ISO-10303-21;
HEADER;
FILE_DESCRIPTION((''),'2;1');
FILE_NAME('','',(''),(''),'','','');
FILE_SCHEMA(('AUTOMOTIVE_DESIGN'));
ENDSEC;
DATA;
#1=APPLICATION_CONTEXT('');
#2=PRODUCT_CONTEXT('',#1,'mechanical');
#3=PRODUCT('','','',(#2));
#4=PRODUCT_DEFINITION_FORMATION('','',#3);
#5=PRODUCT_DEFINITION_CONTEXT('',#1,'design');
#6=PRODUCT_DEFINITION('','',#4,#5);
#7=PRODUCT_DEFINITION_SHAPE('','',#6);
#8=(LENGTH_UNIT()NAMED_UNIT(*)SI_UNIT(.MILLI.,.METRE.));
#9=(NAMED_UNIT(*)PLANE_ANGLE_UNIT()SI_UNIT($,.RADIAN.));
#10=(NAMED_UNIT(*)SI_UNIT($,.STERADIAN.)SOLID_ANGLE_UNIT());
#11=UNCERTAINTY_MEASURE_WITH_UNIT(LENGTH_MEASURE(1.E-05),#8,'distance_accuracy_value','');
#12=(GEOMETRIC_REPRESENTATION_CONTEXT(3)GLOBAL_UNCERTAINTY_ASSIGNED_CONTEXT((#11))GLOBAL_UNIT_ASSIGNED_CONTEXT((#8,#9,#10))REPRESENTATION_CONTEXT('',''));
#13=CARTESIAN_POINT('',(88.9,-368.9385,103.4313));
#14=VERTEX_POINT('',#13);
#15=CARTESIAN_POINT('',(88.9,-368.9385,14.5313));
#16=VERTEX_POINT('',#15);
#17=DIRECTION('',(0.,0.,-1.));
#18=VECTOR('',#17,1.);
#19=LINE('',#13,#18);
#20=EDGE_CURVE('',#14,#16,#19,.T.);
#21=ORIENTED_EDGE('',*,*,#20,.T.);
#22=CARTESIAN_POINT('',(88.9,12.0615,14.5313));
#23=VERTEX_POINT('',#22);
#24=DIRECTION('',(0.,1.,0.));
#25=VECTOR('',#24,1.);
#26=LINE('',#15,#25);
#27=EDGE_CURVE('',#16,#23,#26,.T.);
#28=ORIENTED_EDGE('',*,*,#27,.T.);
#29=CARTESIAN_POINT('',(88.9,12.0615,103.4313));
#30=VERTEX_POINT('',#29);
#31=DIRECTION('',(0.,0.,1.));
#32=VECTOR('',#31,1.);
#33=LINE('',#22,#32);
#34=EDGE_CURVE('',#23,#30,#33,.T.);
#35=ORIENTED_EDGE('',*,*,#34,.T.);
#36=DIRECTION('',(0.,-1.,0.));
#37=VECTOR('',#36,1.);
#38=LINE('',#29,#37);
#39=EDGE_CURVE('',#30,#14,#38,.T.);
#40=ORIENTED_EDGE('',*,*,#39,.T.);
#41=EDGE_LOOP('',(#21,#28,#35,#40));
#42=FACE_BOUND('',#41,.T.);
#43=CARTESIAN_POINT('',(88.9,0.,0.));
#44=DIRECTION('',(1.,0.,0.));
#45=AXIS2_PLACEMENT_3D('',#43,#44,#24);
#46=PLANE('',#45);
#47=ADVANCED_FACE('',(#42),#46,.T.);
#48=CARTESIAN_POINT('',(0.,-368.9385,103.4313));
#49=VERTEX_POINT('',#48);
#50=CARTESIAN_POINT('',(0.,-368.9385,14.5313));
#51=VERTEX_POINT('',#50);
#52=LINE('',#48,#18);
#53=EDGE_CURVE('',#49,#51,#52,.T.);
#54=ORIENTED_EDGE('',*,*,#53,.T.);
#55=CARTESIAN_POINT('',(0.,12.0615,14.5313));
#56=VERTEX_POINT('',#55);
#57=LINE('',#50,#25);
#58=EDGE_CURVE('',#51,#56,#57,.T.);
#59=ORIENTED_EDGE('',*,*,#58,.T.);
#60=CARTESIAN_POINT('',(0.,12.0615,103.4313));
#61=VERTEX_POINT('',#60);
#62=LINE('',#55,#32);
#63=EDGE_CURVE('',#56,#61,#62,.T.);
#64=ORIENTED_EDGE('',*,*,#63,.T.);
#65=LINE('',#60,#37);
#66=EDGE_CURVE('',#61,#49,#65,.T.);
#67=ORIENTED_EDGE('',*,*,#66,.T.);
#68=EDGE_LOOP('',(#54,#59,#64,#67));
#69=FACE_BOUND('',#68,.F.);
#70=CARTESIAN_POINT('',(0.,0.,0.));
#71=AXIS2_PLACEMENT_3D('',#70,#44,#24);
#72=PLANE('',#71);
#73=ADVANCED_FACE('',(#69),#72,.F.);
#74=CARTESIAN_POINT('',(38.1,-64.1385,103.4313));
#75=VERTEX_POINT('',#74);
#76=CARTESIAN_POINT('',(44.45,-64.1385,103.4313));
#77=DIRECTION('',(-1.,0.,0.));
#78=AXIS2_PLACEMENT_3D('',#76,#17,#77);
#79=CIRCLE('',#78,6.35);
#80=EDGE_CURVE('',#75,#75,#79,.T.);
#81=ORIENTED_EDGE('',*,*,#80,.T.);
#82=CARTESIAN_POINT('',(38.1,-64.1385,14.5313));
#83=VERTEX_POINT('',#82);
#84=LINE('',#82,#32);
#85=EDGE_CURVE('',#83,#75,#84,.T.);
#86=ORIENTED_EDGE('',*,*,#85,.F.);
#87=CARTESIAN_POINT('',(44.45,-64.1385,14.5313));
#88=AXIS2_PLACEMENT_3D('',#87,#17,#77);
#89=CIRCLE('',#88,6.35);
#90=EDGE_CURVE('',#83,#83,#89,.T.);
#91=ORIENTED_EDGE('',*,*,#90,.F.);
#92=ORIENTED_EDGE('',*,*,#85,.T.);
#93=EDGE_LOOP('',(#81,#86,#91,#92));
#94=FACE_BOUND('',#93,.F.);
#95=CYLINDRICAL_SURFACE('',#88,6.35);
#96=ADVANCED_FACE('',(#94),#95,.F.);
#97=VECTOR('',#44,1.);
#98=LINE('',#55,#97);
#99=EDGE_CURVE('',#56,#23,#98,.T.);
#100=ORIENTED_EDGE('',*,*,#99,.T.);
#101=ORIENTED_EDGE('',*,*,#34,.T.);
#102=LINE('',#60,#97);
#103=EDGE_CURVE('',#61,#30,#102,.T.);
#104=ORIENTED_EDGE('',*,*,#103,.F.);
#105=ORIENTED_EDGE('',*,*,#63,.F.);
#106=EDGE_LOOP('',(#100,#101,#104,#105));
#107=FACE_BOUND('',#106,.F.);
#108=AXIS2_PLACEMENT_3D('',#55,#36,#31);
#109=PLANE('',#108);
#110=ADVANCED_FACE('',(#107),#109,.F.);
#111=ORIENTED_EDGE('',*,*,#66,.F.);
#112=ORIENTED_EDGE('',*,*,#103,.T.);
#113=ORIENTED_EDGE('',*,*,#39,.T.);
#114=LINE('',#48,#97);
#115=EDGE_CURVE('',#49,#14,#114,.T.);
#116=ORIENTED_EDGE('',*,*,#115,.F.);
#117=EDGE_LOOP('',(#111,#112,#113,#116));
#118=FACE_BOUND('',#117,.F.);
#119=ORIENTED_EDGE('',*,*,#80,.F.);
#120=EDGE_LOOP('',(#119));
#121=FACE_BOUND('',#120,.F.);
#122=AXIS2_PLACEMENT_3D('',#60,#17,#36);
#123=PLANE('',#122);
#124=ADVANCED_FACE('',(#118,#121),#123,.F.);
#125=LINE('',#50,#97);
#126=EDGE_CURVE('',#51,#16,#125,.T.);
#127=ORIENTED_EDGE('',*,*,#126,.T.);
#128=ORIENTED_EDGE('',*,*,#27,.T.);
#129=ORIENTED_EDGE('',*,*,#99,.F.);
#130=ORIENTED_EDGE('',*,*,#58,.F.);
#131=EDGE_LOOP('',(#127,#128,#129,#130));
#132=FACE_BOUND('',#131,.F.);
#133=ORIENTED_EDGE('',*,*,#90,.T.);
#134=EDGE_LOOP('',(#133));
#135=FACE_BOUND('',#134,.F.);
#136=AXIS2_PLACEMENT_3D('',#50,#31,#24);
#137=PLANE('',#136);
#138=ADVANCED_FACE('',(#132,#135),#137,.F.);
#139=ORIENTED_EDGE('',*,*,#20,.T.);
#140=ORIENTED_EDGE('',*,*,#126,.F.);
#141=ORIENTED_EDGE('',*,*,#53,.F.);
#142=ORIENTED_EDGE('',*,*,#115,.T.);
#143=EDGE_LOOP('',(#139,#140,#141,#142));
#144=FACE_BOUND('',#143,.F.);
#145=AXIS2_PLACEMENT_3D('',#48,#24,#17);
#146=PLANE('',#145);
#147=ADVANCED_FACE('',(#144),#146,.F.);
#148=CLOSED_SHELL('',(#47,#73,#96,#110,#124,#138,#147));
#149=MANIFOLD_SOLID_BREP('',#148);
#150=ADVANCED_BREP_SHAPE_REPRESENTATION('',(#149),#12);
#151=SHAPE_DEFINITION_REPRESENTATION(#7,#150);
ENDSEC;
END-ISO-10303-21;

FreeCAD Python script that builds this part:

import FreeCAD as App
import Part
import Sketcher
Q = App.Units.Quantity

doc = App.newDocument("Part")
body = doc.addObject("PartDesign::Body", "Body")

# Sketch on YZ plane
sketch1 = body.newObject("Sketcher::SketchObject", "Sketch")
sketch1.AttachmentSupport = (doc.getObject("YZ_Plane"), [""])
sketch1.MapMode = "FlatFace"
sketch1.addGeometry(Part.LineSegment(App.Vector(12, 15, 0), App.Vector(12, 103, 0)), False)
sketch1.addGeometry(Part.LineSegment(App.Vector(12, 103, 0), App.Vector(-369, 103, 0)), False)
sketch1.addGeometry(Part.LineSegment(App.Vector(-369, 103, 0), App.Vector(-369, 15, 0)), False)
sketch1.addGeometry(Part.LineSegment(App.Vector(-369, 15, 0), App.Vector(12, 15, 0)), False)
sketch1.addConstraint(Sketcher.Constraint("Coincident", 0, 2, 1, 1))
sketch1.addConstraint(Sketcher.Constraint("Coincident", 1, 2, 2, 1))
sketch1.addConstraint(Sketcher.Constraint("Coincident", 2, 2, 3, 1))
sketch1.addConstraint(Sketcher.Constraint("Coincident", 3, 2, 0, 1))
sketch1.addConstraint(Sketcher.Constraint("Vertical", 0))
sketch1.addConstraint(Sketcher.Constraint("Horizontal", 1))
sketch1.addConstraint(Sketcher.Constraint("Vertical", 2))
sketch1.addConstraint(Sketcher.Constraint("Horizontal", 3))
sketch1.addConstraint(Sketcher.Constraint("DistanceX", 1, 2, 1, 1, Q("15 in")))
sketch1.addConstraint(Sketcher.Constraint("DistanceY", 0, 1, 0, 2, Q("3.5 in")))
sketch1.addConstraint(Sketcher.Constraint("DistanceY", -1, 1, 0, 2, Q("4.0721 in")))
sketch1.addConstraint(Sketcher.Constraint("DistanceX", -1, 1, 0, 2, Q("12.0615 mm")))
pad1 = body.newObject("PartDesign::Pad", "Pad")
pad1.Profile = sketch1
pad1.Length = Q("3.5 in")

# Sketch on XY plane
sketch2 = body.newObject("Sketcher::SketchObject", "Sketch001")
sketch2.AttachmentSupport = (doc.getObject("XY_Plane"), [""])
sketch2.MapMode = "FlatFace"
sketch2.AttachmentOffset = App.Placement(App.Vector(0, 0, 0.5720984 * 25.4), App.Rotation())
sketch2.addGeometry(Part.Circle(App.Vector(44, -64, 0), App.Vector(0, 0, 1), 6), False)
sketch2.addConstraint(Sketcher.Constraint("Diameter", 0, Q("0.5 in")))
sketch2.addConstraint(Sketcher.Constraint("DistanceX", -1, 1, 0, 3, Q("1.75 in")))
sketch2.addConstraint(Sketcher.Constraint("DistanceY", 0, 3, -1, 1, Q("64.1385 mm")))
pocket1 = body.newObject("PartDesign::Pocket", "Pocket")
pocket1.Profile = sketch2
pocket1.Length = Q("3.5 in")
pocket1.Reversed = True

doc.recompute()
